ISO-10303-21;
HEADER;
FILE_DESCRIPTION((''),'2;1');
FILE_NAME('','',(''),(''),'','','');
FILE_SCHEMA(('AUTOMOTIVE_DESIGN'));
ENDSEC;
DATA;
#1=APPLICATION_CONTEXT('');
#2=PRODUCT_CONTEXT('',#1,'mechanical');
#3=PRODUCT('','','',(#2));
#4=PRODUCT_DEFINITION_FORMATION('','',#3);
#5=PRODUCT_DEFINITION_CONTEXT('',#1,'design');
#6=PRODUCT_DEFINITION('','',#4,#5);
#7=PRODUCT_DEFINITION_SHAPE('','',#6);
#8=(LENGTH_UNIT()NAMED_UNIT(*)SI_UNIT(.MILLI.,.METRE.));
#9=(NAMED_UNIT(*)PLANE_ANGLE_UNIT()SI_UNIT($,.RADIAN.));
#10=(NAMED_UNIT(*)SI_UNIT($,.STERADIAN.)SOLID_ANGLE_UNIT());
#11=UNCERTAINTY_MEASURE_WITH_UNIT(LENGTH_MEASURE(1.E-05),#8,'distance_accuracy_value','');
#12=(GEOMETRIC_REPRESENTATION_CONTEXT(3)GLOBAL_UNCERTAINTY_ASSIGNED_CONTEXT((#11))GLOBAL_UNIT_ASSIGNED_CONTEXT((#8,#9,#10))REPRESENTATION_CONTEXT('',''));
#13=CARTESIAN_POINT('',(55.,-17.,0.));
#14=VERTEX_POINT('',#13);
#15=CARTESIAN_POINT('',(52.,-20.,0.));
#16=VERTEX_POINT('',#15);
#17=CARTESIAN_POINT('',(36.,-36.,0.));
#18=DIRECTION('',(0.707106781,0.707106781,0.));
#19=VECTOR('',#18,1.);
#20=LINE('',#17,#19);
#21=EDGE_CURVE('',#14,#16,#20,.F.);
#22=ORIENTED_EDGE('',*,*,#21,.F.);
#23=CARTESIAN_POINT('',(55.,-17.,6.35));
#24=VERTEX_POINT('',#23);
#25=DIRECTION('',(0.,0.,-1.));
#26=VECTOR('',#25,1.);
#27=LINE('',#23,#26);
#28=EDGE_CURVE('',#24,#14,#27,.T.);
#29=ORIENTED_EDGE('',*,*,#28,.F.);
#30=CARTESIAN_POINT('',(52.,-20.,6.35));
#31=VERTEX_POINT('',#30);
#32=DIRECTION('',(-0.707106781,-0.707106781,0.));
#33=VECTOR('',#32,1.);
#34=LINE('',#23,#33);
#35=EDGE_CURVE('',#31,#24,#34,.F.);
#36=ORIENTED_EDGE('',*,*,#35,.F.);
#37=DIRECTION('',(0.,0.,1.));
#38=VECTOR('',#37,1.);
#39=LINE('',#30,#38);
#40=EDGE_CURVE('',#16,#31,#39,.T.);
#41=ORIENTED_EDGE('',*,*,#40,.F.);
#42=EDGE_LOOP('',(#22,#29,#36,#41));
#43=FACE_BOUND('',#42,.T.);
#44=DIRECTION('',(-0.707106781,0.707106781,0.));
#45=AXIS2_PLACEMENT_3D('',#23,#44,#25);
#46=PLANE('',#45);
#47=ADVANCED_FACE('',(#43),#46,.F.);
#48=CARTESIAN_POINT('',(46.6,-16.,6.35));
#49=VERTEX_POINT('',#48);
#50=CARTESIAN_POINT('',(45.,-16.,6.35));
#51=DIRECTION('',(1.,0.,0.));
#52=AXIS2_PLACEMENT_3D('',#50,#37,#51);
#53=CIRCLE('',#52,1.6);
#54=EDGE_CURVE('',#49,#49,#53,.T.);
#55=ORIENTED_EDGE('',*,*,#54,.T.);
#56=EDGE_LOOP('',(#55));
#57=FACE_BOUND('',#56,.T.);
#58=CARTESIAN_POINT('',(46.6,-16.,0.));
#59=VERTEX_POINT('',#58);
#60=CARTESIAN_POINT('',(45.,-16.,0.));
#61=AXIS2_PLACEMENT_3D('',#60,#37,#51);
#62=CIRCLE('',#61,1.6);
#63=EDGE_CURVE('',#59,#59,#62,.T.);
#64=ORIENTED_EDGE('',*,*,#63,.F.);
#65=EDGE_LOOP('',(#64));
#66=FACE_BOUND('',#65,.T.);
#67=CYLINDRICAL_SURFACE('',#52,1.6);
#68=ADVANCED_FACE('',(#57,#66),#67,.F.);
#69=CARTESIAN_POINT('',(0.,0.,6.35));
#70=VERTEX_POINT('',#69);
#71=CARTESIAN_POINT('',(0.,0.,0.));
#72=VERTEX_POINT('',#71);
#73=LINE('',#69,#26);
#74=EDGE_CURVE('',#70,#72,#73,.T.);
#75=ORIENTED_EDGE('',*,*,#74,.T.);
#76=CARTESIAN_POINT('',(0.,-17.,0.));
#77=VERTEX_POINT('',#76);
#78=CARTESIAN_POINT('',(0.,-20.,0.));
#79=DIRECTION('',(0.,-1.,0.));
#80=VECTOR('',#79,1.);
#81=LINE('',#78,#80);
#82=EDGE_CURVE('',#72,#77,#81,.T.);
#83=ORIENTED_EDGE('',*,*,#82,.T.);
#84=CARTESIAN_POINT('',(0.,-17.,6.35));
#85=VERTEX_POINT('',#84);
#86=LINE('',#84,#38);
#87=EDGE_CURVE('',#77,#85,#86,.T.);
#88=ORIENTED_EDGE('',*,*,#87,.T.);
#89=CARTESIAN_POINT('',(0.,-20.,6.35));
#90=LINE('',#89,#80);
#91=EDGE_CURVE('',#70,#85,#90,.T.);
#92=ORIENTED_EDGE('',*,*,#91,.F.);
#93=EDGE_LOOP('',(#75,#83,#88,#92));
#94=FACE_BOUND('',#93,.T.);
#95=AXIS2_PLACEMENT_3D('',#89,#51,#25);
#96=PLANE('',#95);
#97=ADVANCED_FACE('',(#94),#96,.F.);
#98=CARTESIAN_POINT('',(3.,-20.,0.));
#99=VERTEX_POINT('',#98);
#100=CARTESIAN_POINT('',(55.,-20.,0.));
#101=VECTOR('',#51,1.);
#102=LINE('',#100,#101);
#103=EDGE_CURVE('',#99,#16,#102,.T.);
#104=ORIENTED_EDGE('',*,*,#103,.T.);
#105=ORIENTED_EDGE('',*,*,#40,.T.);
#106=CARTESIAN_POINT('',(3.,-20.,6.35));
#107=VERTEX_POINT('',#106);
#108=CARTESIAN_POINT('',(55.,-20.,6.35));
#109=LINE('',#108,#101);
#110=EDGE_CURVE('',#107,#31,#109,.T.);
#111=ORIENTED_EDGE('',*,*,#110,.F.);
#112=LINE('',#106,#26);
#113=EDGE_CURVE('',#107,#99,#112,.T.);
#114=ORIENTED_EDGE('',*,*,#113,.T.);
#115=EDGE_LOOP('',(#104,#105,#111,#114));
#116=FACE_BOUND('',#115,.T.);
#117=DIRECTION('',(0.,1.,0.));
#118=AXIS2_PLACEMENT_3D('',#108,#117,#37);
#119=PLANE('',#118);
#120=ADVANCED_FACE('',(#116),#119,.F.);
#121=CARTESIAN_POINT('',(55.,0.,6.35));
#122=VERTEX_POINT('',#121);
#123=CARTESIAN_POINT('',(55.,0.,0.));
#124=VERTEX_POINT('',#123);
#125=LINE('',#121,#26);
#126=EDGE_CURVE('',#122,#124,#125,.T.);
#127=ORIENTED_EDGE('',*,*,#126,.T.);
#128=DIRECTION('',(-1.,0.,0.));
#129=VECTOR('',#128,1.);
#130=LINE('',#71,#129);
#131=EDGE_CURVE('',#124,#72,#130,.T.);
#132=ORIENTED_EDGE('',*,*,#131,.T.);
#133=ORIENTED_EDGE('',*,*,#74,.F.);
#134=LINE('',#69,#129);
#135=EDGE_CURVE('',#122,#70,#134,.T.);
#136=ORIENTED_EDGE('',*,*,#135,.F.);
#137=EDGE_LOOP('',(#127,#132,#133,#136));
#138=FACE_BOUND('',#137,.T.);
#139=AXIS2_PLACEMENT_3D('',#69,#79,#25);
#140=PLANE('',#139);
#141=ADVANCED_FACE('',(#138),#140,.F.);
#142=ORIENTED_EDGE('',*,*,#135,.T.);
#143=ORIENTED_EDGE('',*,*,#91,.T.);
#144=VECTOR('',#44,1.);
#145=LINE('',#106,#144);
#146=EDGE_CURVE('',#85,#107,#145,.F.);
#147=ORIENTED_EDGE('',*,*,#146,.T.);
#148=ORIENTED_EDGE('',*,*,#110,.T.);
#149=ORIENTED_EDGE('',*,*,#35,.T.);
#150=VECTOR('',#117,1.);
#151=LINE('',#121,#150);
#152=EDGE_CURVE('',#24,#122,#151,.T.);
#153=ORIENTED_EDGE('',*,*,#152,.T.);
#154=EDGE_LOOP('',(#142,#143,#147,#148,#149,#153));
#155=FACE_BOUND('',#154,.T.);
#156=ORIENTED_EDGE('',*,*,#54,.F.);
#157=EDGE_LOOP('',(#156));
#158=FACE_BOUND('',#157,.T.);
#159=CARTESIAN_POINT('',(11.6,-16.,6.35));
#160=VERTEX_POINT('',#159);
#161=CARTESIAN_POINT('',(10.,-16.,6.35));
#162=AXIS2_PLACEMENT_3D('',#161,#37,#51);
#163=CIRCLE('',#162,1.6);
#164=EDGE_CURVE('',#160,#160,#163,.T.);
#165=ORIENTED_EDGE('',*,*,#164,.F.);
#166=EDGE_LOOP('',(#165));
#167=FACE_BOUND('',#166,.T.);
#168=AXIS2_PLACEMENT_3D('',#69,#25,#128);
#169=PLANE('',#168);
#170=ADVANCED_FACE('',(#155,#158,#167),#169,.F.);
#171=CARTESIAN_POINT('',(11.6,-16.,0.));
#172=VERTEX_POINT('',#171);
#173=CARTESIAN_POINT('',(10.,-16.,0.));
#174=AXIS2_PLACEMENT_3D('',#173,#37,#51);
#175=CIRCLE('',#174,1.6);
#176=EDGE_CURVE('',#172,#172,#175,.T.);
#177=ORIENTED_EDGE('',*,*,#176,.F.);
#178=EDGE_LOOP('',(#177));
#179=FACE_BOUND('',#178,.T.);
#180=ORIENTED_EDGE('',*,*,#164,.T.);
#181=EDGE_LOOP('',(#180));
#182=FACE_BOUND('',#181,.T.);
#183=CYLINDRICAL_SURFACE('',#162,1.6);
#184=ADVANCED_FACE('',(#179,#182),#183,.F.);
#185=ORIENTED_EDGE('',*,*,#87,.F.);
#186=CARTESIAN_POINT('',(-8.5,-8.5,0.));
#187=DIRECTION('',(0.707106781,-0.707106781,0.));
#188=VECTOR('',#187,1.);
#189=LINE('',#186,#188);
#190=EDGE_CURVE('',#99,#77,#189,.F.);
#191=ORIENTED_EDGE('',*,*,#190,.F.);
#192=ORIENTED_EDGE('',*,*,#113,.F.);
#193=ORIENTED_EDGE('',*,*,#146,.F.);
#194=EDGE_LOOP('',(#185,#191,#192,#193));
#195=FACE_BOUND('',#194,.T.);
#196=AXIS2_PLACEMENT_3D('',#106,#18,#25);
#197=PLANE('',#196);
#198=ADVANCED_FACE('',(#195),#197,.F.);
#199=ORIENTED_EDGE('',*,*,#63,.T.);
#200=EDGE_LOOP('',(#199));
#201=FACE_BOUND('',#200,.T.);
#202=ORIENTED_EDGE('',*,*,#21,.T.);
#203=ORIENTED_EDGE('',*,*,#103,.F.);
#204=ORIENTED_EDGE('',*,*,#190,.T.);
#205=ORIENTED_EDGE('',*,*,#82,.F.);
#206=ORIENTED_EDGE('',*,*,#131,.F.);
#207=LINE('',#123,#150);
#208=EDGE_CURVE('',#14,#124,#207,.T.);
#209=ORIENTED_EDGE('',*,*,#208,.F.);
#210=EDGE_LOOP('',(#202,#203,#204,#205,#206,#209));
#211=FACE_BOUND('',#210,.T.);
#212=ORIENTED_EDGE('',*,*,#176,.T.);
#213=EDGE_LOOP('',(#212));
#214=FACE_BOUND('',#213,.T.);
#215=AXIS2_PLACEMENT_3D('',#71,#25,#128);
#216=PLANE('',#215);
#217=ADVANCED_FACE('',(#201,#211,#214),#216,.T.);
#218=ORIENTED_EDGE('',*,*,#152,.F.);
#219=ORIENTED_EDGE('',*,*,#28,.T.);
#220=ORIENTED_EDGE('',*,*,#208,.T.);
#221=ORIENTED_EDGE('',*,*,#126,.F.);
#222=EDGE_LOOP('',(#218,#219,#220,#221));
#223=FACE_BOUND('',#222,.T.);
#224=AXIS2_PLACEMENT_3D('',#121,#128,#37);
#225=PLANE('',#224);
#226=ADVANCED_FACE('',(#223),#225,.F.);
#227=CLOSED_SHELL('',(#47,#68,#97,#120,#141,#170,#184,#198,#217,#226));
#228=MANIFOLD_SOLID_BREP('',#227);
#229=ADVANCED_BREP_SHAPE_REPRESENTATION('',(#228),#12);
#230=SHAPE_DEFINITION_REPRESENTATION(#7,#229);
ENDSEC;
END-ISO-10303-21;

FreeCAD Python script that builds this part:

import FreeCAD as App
import Part
import Sketcher


def edges_at(feature, points):
    """Names of the edges that pass closest to the given points."""
    edges = feature.Shape.Edges
    near = lambda p: min(range(len(edges)), key=lambda i: edges[i].distToShape(Part.Vertex(*p))[0])
    return sorted({f"Edge{near(p) + 1}" for p in points})

doc = App.newDocument("Part")
body = doc.addObject("PartDesign::Body", "Body")

# Sketch on XY plane
sketch1 = body.newObject("Sketcher::SketchObject", "Sketch")
sketch1.AttachmentSupport = (doc.getObject("XY_Plane"), [""])
sketch1.MapMode = "FlatFace"
sketch1.addGeometry(Part.LineSegment(App.Vector(0, 0, 0), App.Vector(0, -20, 0)), False)
sketch1.addGeometry(Part.LineSegment(App.Vector(0, -20, 0), App.Vector(55, -20, 0)), False)
sketch1.addGeometry(Part.LineSegment(App.Vector(55, -20, 0), App.Vector(55, 0, 0)), False)
sketch1.addGeometry(Part.LineSegment(App.Vector(55, 0, 0), App.Vector(0, 0, 0)), False)
sketch1.addConstraint(Sketcher.Constraint("Coincident", 0, 2, 1, 1))
sketch1.addConstraint(Sketcher.Constraint("Coincident", 1, 2, 2, 1))
sketch1.addConstraint(Sketcher.Constraint("Coincident", 2, 2, 3, 1))
sketch1.addConstraint(Sketcher.Constraint("Coincident", 3, 2, 0, 1))
sketch1.addConstraint(Sketcher.Constraint("Vertical", 0))
sketch1.addConstraint(Sketcher.Constraint("Horizontal", 1))
sketch1.addConstraint(Sketcher.Constraint("Vertical", 2))
sketch1.addConstraint(Sketcher.Constraint("Horizontal", 3))
sketch1.addConstraint(Sketcher.Constraint("Coincident", 3, 2, -1, 1))
sketch1.addConstraint(Sketcher.Constraint("DistanceX", 1, 1, 1, 2, 55.0))
sketch1.addConstraint(Sketcher.Constraint("DistanceY", 0, 2, 0, 1, 20.0))
pad1 = body.newObject("PartDesign::Pad", "Pad")
pad1.Profile = sketch1
pad1.Length = 6.35

# Sketch on XY plane
sketch2 = body.newObject("Sketcher::SketchObject", "Sketch001")
sketch2.AttachmentSupport = (doc.getObject("XY_Plane"), [""])
sketch2.MapMode = "FlatFace"
sketch2.AttachmentOffset = App.Placement(App.Vector(0, 0, 6.35), App.Rotation())
sketch2.addGeometry(Part.Circle(App.Vector(10, -16, 0), App.Vector(0, 0, 1), 1.6), False)
sketch2.addGeometry(Part.Circle(App.Vector(45, -16, 0), App.Vector(0, 0, 1), 1.6), False)
sketch2.addConstraint(Sketcher.Constraint("Equal", 0, 1))
sketch2.addConstraint(Sketcher.Constraint("Horizontal", 0, 3, 1, 3))
sketch2.addConstraint(Sketcher.Constraint("Diameter", 0, 3.2))
sketch2.addConstraint(Sketcher.Constraint("DistanceX", -1, 1, 0, 3, 10.0))
sketch2.addConstraint(Sketcher.Constraint("DistanceY", 0, 3, -1, 1, 16.0))
sketch2.addConstraint(Sketcher.Constraint("DistanceX", -1, 1, 1, 3, 45.0))
doc.recompute()
hole = body.newObject("PartDesign::Hole", "Hole")
hole.Profile = sketch2
hole.ThreadType = "None"
hole.Diameter = 3.2
hole.DepthType = "ThroughAll"
doc.recompute()

chamfer = body.newObject("PartDesign::Chamfer", "Chamfer")
chamfer.Base = (hole, edges_at(hole, [(55, -20, 3.175), (0, -20, 3.175)]))
chamfer.Size = 3

doc.recompute()
